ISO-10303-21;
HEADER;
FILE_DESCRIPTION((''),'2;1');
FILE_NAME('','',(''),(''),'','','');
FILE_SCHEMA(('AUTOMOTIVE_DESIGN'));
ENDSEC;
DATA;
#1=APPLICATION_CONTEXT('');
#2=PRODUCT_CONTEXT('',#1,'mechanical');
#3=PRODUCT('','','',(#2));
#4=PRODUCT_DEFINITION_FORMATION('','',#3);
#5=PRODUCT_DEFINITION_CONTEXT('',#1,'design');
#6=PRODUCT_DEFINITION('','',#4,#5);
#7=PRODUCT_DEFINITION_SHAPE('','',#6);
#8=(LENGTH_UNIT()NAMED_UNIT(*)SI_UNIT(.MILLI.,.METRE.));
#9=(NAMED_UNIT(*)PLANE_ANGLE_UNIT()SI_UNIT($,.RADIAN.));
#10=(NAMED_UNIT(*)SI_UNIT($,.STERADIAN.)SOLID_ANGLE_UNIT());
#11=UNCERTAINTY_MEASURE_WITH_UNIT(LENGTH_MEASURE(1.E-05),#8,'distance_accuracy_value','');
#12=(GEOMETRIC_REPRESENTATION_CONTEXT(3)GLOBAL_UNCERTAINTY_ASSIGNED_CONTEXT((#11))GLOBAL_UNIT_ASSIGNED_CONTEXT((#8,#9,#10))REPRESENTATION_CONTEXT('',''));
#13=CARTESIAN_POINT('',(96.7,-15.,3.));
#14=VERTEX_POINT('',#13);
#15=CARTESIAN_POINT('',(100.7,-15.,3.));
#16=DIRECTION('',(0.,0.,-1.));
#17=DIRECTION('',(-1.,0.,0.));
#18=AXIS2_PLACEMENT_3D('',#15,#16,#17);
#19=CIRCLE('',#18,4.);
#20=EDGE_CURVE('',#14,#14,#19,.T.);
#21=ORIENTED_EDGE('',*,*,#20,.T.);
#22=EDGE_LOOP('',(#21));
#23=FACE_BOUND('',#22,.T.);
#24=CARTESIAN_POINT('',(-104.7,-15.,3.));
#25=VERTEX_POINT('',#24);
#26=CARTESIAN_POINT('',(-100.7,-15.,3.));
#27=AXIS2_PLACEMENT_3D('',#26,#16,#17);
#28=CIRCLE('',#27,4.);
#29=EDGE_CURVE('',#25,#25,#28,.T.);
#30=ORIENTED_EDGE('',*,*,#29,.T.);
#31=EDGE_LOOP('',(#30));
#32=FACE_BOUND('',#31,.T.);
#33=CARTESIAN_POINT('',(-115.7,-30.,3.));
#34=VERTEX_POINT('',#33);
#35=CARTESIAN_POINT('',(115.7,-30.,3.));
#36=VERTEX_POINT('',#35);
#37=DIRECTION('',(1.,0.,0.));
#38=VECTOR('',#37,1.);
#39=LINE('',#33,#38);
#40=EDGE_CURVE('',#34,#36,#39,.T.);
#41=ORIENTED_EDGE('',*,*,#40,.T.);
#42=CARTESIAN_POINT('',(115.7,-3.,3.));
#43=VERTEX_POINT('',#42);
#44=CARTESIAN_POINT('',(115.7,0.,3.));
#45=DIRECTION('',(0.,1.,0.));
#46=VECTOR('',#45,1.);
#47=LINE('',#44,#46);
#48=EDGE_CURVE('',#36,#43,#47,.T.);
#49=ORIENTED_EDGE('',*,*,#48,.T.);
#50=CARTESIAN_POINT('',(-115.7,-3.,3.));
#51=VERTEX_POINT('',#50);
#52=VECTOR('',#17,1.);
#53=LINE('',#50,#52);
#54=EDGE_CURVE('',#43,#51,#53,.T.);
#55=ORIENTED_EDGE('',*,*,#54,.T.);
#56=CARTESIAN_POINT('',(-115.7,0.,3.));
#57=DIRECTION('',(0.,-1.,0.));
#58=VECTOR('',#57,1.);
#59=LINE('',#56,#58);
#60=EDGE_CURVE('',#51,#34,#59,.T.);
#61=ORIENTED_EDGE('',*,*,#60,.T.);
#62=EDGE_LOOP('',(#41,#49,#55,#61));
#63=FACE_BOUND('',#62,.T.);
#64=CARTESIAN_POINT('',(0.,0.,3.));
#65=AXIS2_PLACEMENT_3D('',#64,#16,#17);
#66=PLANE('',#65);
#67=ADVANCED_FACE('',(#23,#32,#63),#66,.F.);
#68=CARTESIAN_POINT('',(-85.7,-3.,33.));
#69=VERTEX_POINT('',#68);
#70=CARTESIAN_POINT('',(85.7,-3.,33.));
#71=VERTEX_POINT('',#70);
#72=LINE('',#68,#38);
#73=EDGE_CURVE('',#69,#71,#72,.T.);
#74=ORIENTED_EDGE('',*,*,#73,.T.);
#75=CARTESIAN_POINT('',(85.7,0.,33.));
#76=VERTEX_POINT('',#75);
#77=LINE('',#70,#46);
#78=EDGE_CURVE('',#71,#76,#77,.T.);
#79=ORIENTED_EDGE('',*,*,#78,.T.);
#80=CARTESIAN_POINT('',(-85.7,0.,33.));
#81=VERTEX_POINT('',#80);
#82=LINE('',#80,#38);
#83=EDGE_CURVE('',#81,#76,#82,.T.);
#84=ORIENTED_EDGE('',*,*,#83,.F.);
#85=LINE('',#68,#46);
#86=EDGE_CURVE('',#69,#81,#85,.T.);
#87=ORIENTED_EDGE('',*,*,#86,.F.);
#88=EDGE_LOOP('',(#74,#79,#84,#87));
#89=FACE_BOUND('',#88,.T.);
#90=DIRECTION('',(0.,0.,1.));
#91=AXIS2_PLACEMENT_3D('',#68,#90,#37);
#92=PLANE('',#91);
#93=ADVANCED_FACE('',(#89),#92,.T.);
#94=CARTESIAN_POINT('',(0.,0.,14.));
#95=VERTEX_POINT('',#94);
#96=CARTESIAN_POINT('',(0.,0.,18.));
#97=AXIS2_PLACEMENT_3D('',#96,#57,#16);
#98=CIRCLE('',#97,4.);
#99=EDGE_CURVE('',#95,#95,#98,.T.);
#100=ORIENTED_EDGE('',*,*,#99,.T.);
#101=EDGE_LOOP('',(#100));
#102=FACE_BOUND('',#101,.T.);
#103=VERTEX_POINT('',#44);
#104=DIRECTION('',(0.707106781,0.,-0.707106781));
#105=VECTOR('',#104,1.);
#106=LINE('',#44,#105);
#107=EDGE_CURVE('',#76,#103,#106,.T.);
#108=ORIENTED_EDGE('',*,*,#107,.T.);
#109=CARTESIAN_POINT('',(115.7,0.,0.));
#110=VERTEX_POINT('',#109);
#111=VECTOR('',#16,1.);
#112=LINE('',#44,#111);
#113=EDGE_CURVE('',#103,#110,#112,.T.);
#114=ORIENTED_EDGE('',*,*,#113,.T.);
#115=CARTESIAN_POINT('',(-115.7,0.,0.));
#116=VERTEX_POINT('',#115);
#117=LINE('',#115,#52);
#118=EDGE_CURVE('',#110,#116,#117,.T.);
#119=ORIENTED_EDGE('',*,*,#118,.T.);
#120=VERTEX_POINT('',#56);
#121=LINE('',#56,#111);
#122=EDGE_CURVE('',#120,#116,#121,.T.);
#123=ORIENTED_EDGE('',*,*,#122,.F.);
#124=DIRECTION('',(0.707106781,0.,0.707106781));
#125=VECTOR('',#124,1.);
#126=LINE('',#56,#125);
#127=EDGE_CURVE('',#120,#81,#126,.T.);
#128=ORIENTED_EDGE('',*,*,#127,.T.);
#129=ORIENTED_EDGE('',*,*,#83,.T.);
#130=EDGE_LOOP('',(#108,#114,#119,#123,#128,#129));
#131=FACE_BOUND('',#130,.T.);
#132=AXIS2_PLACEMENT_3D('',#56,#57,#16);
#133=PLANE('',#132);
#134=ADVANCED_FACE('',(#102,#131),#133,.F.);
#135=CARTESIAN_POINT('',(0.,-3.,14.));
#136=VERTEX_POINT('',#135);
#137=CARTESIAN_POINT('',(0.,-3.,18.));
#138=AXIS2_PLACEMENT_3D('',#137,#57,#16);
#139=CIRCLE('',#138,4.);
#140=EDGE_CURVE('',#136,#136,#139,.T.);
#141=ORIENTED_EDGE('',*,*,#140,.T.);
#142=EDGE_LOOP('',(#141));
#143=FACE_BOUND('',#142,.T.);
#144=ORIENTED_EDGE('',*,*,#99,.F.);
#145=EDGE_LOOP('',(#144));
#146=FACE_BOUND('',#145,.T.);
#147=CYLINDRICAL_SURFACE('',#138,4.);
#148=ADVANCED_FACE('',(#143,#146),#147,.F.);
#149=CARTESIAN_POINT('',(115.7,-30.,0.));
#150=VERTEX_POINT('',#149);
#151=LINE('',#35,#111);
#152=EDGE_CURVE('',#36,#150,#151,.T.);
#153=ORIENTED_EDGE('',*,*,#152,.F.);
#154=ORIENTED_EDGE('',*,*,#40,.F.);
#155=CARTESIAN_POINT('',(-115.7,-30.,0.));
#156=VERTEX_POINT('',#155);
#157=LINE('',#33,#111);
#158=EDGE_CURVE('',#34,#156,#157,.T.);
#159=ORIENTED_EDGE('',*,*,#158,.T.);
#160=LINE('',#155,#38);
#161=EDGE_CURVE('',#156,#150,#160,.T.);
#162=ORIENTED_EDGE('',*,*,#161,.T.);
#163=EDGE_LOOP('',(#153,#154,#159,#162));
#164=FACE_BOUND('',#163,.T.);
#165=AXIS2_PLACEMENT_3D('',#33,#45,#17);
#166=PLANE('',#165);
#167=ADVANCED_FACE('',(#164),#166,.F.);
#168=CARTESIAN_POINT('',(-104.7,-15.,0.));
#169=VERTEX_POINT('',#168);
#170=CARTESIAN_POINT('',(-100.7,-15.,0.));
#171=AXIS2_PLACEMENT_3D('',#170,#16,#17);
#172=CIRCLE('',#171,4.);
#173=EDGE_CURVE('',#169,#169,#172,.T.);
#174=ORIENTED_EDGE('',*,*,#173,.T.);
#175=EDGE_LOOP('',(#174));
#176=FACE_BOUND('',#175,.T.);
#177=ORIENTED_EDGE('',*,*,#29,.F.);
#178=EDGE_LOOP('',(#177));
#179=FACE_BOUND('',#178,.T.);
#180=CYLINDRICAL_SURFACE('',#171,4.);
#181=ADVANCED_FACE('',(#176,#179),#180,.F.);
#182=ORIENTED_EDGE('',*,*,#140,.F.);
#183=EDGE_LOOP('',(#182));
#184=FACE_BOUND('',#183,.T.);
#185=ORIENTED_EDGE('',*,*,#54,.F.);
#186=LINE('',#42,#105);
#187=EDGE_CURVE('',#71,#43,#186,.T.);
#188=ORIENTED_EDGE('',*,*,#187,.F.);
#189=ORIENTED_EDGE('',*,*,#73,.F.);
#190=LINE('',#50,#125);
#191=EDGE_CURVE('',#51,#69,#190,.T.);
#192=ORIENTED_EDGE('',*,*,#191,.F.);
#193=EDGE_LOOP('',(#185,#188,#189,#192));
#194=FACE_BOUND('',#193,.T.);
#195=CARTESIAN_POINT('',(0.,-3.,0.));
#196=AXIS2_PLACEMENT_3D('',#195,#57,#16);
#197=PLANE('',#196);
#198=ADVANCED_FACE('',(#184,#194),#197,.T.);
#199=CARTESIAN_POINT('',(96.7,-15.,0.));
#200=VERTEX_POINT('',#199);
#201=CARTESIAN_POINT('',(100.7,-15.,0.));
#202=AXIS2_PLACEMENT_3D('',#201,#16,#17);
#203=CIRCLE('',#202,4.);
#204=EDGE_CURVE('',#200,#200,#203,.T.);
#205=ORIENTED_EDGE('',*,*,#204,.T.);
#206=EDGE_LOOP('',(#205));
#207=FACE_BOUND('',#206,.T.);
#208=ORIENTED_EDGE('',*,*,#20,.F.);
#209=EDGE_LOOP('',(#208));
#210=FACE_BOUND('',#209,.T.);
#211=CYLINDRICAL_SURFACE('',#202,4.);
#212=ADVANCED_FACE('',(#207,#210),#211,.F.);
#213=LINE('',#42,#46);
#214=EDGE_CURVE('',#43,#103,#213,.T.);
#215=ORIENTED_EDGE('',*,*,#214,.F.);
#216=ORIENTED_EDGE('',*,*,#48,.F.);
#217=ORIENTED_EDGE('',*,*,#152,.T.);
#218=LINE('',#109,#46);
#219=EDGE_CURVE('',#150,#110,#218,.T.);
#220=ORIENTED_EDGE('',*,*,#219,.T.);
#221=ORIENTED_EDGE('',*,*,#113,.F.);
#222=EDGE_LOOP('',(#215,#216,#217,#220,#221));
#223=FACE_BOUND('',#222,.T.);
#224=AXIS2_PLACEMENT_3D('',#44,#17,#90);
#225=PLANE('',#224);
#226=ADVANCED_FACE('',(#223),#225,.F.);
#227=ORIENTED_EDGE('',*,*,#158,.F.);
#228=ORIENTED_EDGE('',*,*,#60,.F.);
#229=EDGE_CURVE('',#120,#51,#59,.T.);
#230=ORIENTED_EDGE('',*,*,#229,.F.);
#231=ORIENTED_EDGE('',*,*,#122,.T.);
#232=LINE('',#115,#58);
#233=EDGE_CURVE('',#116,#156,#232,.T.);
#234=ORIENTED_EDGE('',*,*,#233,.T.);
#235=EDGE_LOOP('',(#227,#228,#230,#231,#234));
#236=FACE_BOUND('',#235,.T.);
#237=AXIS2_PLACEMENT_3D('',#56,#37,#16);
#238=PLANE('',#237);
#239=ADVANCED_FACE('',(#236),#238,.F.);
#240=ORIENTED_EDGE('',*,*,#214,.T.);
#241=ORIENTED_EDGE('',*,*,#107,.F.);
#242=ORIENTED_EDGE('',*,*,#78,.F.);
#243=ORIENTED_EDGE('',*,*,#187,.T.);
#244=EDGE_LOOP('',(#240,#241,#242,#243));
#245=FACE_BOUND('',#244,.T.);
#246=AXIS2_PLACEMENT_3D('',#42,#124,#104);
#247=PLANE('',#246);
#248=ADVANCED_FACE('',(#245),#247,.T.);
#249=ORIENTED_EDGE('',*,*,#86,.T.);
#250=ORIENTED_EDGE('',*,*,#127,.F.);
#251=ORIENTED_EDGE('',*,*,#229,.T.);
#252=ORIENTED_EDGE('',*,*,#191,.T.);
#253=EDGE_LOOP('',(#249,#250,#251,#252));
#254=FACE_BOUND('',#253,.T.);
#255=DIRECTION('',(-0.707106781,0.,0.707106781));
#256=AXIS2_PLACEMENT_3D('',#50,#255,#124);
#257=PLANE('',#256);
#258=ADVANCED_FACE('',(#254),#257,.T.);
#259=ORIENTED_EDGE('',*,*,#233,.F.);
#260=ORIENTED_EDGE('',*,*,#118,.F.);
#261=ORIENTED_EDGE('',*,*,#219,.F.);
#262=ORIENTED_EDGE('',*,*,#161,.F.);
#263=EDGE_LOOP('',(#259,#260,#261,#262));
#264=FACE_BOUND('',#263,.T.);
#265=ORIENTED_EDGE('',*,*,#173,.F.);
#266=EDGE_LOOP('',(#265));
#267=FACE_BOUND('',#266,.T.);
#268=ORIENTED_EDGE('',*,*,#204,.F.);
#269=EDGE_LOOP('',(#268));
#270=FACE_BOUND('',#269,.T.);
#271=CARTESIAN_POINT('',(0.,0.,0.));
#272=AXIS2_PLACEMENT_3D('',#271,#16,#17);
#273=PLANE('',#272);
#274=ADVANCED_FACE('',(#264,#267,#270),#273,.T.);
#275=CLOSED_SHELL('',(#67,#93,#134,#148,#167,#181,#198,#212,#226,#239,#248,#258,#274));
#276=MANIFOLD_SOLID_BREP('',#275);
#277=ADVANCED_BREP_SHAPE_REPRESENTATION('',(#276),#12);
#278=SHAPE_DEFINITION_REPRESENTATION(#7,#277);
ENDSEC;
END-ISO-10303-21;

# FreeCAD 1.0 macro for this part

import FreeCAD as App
import Part
import Sketcher
from FreeCAD import Vector
Q = App.Units.Quantity

doc = App.newDocument("Part")
body = doc.addObject("PartDesign::Body", "Body")

sketch1 = body.newObject("Sketcher::SketchObject", "Sketch")
sketch1.AttachmentSupport = (doc.getObject("XY_Plane"), [""])
sketch1.MapMode = "FlatFace"
sketch1.addGeometry([
    Part.LineSegment(Vector(-115.7, 0, 0), Vector(-115.7, -30, 0)),
    Part.LineSegment(Vector(-115.7, -30, 0), Vector(115.7, -30, 0)),
    Part.LineSegment(Vector(115.7, -30, 0), Vector(115.7, 0, 0)),
    Part.LineSegment(Vector(115.7, 0, 0), Vector(-115.7, 0, 0)),
], False)
sketch1.addConstraint([
    Sketcher.Constraint("Coincident", 0, 2, 1, 1),
    Sketcher.Constraint("Coincident", 1, 2, 2, 1),
    Sketcher.Constraint("Coincident", 2, 2, 3, 1),
    Sketcher.Constraint("Coincident", 3, 2, 0, 1),
    Sketcher.Constraint("Vertical", 0),
    Sketcher.Constraint("Horizontal", 1),
    Sketcher.Constraint("Vertical", 2),
    Sketcher.Constraint("Horizontal", 3),
    Sketcher.Constraint("Symmetric", 2, 2, 3, 2, -1, 1),
    Sketcher.Constraint("DistanceY", 0, 2, 0, 1, Q("30 mm")),
    Sketcher.Constraint("DistanceX", 1, 1, 1, 2, Q("231.4 mm")),
])
pad1 = body.newObject("PartDesign::Pad", "Pad")
pad1.Profile = sketch1
pad1.Length = 3

sketch2 = body.newObject("Sketcher::SketchObject", "Sketch001")
sketch2.AttachmentSupport = (doc.getObject("XZ_Plane"), [""])
sketch2.MapMode = "FlatFace"
sketch2.addGeometry([
    Part.LineSegment(Vector(-85.7, 33, 0), Vector(85.7, 33, 0)),
    Part.LineSegment(Vector(85.7, 33, 0), Vector(115.7, 3, 0)),
    Part.LineSegment(Vector(115.7, 3, 0), Vector(-115.7, 3, 0)),
    Part.LineSegment(Vector(-115.7, 3, 0), Vector(-85.7, 33, 0)),
], False)
sketch2.addConstraint([
    Sketcher.Constraint("Coincident", 0, 2, 1, 1),
    Sketcher.Constraint("Coincident", 1, 2, 2, 1),
    Sketcher.Constraint("Coincident", 2, 2, 3, 1),
    Sketcher.Constraint("Coincident", 3, 2, 0, 1),
    Sketcher.Constraint("Horizontal", 0),
    Sketcher.Constraint("Horizontal", 2),
    Sketcher.Constraint("Perpendicular", 1, 3),
    Sketcher.Constraint("Equal", 1, 3),
    Sketcher.Constraint("DistanceX", 0, 1, 0, 2, Q("171.4 mm")),
    Sketcher.Constraint("DistanceX", 2, 2, 2, 1, Q("231.4 mm")),
    Sketcher.Constraint("DistanceY", -1, 1, 0, 2, Q("33 mm")),
    Sketcher.Constraint("DistanceX", -1, 1, 0, 2, Q("85.7 mm")),
])
pad2 = body.newObject("PartDesign::Pad", "Pad001")
pad2.Profile = sketch2
pad2.Length = 3

sketch3 = body.newObject("Sketcher::SketchObject", "Sketch002")
sketch3.AttachmentSupport = (doc.getObject("XY_Plane"), [""])
sketch3.MapMode = "FlatFace"
sketch3.addGeometry([
    Part.Circle(Vector(-100.7, -15, 0), Vector(0, 0, 1), 4),
    Part.Circle(Vector(100.7, -15, 0), Vector(0, 0, 1), 4),
], False)
sketch3.addConstraint([
    Sketcher.Constraint("Equal", 0, 1),
    Sketcher.Constraint("Symmetric", 0, 3, 1, 3, -2),
    Sketcher.Constraint("Diameter", 0, Q("8 mm")),
    Sketcher.Constraint("DistanceY", 0, 3, -1, 1, Q("15 mm")),
    Sketcher.Constraint("DistanceX", 0, 3, -1, 1, Q("100.7 mm")),
])
doc.recompute()
hole = body.newObject("PartDesign::Hole", "Hole")
hole.Profile = sketch3
hole.ThreadType = "None"
hole.Diameter = 8
hole.DepthType = "ThroughAll"
hole.Reversed = True

sketch4 = body.newObject("Sketcher::SketchObject", "Sketch003")
sketch4.AttachmentSupport = (doc.getObject("XZ_Plane"), [""])
sketch4.MapMode = "FlatFace"
sketch4.AttachmentOffset = App.Placement(Vector(0, 0, 3), App.Rotation())
sketch4.addGeometry(Part.Circle(Vector(0, 18, 0), Vector(0, 0, 1), 4), False)
sketch4.addConstraint([
    Sketcher.Constraint("PointOnObject", 0, 3, -2),
    Sketcher.Constraint("Diameter", 0, Q("8 mm")),
    Sketcher.Constraint("DistanceY", -1, 1, 0, 3, Q("18 mm")),
])
doc.recompute()
hole2 = body.newObject("PartDesign::Hole", "Hole001")
hole2.Profile = sketch4
hole2.ThreadType = "None"
hole2.Diameter = 8
hole2.DepthType = "ThroughAll"

doc.recompute()
